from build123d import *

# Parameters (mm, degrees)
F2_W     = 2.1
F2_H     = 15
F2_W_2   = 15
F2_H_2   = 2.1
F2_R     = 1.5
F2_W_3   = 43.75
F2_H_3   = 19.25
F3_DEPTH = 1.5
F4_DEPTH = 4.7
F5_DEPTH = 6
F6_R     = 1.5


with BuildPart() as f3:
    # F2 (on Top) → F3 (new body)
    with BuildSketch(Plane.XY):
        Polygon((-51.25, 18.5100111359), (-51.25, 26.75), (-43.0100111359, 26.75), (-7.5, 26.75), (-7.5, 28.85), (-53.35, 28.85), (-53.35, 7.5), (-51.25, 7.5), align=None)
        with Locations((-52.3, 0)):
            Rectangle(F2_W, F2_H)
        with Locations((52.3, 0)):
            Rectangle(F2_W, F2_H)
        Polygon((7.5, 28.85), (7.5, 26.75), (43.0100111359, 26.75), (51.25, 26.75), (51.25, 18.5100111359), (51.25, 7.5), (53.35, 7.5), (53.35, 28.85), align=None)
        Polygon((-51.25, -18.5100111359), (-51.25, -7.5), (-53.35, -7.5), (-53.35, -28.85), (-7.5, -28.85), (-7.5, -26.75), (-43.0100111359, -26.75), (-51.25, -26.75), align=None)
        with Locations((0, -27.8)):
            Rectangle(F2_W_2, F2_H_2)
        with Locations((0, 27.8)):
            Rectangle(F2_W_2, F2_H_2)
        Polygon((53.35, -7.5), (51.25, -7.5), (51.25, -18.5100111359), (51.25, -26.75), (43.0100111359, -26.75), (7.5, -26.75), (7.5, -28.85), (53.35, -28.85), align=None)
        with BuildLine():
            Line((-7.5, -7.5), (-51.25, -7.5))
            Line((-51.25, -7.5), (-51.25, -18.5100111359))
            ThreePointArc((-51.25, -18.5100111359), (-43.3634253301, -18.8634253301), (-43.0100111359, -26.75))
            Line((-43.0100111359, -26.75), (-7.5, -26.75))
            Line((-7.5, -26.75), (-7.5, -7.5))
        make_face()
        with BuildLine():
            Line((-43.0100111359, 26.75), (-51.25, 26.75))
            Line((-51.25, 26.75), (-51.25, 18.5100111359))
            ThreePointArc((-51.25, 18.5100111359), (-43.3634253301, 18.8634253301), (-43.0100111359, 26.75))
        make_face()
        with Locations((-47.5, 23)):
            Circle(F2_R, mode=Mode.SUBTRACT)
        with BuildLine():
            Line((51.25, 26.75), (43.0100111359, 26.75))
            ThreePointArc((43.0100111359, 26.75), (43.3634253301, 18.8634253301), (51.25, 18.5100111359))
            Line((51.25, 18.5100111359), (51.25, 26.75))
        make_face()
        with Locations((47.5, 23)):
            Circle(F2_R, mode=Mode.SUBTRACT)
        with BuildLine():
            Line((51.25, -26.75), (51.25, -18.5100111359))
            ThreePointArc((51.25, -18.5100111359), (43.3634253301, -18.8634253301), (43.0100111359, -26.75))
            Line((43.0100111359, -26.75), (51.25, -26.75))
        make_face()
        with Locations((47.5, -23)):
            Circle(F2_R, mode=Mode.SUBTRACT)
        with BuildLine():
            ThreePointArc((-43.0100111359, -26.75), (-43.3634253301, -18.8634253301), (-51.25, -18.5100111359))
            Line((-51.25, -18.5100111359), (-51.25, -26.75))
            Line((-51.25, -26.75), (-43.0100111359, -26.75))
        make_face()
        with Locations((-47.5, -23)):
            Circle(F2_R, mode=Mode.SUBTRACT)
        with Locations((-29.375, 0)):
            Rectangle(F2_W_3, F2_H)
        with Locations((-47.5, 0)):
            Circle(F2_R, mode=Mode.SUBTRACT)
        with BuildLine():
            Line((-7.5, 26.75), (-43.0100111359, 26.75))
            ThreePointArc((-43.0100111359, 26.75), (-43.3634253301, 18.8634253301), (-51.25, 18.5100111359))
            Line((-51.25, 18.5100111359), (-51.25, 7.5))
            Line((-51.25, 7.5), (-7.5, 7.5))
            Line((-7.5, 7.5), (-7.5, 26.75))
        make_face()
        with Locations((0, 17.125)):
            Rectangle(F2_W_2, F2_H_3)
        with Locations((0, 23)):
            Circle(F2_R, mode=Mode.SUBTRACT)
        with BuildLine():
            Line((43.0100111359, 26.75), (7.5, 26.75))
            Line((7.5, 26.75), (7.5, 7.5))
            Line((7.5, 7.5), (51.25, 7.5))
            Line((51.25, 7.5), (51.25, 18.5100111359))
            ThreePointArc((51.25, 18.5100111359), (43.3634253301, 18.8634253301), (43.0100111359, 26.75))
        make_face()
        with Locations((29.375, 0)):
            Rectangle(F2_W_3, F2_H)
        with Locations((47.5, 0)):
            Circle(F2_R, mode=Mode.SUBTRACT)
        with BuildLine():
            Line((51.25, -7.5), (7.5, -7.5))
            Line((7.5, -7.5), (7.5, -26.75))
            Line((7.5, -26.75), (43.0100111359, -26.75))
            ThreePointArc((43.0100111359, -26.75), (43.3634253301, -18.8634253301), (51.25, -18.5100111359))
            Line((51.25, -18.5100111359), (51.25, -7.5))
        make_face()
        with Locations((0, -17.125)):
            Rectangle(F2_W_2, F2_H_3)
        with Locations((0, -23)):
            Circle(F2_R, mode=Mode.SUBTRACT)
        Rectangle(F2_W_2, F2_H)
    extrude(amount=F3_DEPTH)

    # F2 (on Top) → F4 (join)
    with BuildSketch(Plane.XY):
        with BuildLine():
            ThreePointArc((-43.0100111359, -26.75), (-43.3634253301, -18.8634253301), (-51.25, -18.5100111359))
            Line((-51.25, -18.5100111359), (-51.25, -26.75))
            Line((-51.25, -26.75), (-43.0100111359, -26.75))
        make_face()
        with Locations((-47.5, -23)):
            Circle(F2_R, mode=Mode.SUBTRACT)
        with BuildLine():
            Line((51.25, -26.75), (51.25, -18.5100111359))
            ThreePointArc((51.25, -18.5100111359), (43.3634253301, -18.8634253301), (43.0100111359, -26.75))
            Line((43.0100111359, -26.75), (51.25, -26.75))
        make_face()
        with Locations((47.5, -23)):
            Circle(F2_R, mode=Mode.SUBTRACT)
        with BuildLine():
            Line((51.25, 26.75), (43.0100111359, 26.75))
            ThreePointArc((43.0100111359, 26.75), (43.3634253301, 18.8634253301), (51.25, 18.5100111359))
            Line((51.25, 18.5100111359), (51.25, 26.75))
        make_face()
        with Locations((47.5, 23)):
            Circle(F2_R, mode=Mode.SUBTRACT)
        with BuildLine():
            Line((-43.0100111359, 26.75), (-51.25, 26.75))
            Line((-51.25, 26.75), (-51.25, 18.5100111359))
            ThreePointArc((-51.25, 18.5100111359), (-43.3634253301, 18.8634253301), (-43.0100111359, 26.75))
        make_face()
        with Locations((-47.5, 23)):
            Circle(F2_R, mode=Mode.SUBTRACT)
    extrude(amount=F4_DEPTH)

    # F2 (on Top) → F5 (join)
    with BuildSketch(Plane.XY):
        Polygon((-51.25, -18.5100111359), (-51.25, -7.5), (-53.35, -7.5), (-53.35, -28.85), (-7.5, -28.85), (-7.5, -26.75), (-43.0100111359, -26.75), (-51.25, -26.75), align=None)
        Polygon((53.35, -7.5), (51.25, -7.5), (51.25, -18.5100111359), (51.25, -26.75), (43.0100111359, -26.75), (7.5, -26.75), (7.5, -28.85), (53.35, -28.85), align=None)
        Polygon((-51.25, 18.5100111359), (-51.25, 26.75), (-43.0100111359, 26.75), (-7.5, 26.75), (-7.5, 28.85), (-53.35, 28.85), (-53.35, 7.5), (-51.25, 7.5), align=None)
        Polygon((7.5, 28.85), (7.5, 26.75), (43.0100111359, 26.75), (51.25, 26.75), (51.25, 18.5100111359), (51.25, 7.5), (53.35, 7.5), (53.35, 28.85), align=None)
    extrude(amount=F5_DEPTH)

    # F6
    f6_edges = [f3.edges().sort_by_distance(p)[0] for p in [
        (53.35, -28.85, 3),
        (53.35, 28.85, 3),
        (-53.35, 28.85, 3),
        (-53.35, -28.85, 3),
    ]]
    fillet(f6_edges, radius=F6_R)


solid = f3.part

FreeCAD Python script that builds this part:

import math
import FreeCAD as App
import Part
import Sketcher
Q = App.Units.Quantity


def edges_at(feature, points):
    """Names of the edges that pass closest to the given points."""
    edges = feature.Shape.Edges
    near = lambda p: min(range(len(edges)), key=lambda i: edges[i].distToShape(Part.Vertex(*p))[0])
    return sorted({f"Edge{near(p) + 1}" for p in points})


def add_polygon(sketch, points):
    """Adds a closed chain of lines whose ends are joined by coincident constraints."""
    first, n = sketch.GeometryCount, len(points)
    for a, b in zip(points, points[1:] + points[:1]):
        sketch.addGeometry(Part.LineSegment(App.Vector(*a, 0), App.Vector(*b, 0)), False)
    for i in range(n):
        sketch.addConstraint(Sketcher.Constraint("Coincident", first + i, 2, first + (i + 1) % n, 1))

doc = App.newDocument("Part")
params = doc.addObject("Spreadsheet::Sheet", "Params")
for row, (alias, value) in enumerate([
    ("sketch1_diameter", "3 mm"),
    ("sketch1_width", "106.7 mm"),
    ("sketch1_height", "57.7 mm"),
    ("pad1_length", "1.5 mm"),
    ("sketch2_diameter", "3 mm"),
    ("sketch2_radius", "5.85 mm"),
    ("pad2_length", "4.7 mm"),
    ("sketch3_width", "2.1 mm"),
    ("sketch3_width2", "45.85 mm"),
    ("sketch3_height", "21.35 mm"),
    ("pad3_length", "6 mm"),
    ("fillet_radius", "1.5 mm"),
], start=1):
    params.set(f"A{row}", alias)
    params.set(f"B{row}", "=" + value)
    params.setAlias(f"B{row}", alias)

body = doc.addObject("PartDesign::Body", "Body")

# Sketch on XY plane
sketch1 = body.newObject("Sketcher::SketchObject", "Sketch")
sketch1.AttachmentSupport = (doc.getObject("XY_Plane"), [""])
sketch1.MapMode = "FlatFace"
add_polygon(sketch1, [(53.4, 28.9), (-53.4, 28.9), (-53.4, -28.9), (53.4, -28.9)])  # lines 0-3
sketch1.addGeometry(Part.Circle(App.Vector(-47.5, -23, 0), App.Vector(0, 0, 1), 1.5), False)  # 4
sketch1.addGeometry(Part.Circle(App.Vector(0, -23, 0), App.Vector(0, 0, 1), 1.5), False)  # 5
sketch1.addGeometry(Part.Circle(App.Vector(-47.5, 0, 0), App.Vector(0, 0, 1), 1.5), False)  # 6
sketch1.addGeometry(Part.Circle(App.Vector(47.5, -23, 0), App.Vector(0, 0, 1), 1.5), False)  # 7
sketch1.addGeometry(Part.Circle(App.Vector(47.5, 0, 0), App.Vector(0, 0, 1), 1.5), False)  # 8
sketch1.addGeometry(Part.Circle(App.Vector(-47.5, 23, 0), App.Vector(0, 0, 1), 1.5), False)  # 9
sketch1.addGeometry(Part.Circle(App.Vector(0, 23, 0), App.Vector(0, 0, 1), 1.5), False)  # 10
sketch1.addGeometry(Part.Circle(App.Vector(47.5, 23, 0), App.Vector(0, 0, 1), 1.5), False)  # 11
sketch1.addConstraint(Sketcher.Constraint("Horizontal", 0))
sketch1.addConstraint(Sketcher.Constraint("Vertical", 1))
sketch1.addConstraint(Sketcher.Constraint("Horizontal", 2))
sketch1.addConstraint(Sketcher.Constraint("Vertical", 3))
sketch1.addConstraint(Sketcher.Constraint("Equal", 4, 5))
sketch1.addConstraint(Sketcher.Constraint("Equal", 5, 6))
sketch1.addConstraint(Sketcher.Constraint("Equal", 6, 7))
sketch1.addConstraint(Sketcher.Constraint("Equal", 7, 8))
sketch1.addConstraint(Sketcher.Constraint("Equal", 8, 9))
sketch1.addConstraint(Sketcher.Constraint("Equal", 9, 10))
sketch1.addConstraint(Sketcher.Constraint("Equal", 10, 11))
sketch1.addConstraint(Sketcher.Constraint("Symmetric", 6, 3, 8, 3, -1, 1))
sketch1.addConstraint(Sketcher.Constraint("Symmetric", 7, 3, 9, 3, -1, 1))
sketch1.addConstraint(Sketcher.Constraint("Symmetric", 5, 3, 10, 3, -1, 1))
sketch1.addConstraint(Sketcher.Constraint("Symmetric", 4, 3, 11, 3, -1, 1))
sketch1.addConstraint(Sketcher.Constraint("Symmetric", 0, 2, 2, 2, -1, 1))
sketch1.addConstraint(Sketcher.Constraint("Symmetric", 4, 3, 7, 3, -2))
sketch1.addConstraint(Sketcher.Constraint("PointOnObject", 5, 3, -2))
sketch1.addConstraint(Sketcher.Constraint("PointOnObject", 6, 3, -1))
sketch1.addConstraint(Sketcher.Constraint("Horizontal", 4, 3, 5, 3))
sketch1.addConstraint(Sketcher.Constraint("Vertical", 4, 3, 6, 3))
sketch1.addConstraint(Sketcher.Constraint("Diameter", 4, Q("3 mm")))
sketch1.addConstraint(Sketcher.Constraint("DistanceX", 0, 2, 0, 1, Q("106.7 mm")))
sketch1.addConstraint(Sketcher.Constraint("DistanceY", 1, 2, 1, 1, Q("57.7 mm")))
sketch1.addConstraint(Sketcher.Constraint("DistanceY", 4, 3, -1, 1, Q("23 mm")))
sketch1.addConstraint(Sketcher.Constraint("DistanceX", 4, 3, 7, 3, Q("95 mm")))
sketch1.setExpression("Constraints[25]", "Params.sketch1_diameter")
sketch1.setExpression("Constraints[26]", "Params.sketch1_width")
sketch1.setExpression("Constraints[27]", "Params.sketch1_height")
pad1 = body.newObject("PartDesign::Pad", "Pad")
pad1.Profile = sketch1
pad1.setExpression("Length", "Params.pad1_length")

# Sketch on XY plane
sketch2 = body.newObject("Sketcher::SketchObject", "Sketch001")
sketch2.AttachmentSupport = (doc.getObject("XY_Plane"), [""])
sketch2.MapMode = "FlatFace"
sketch2.addGeometry(Part.ArcOfCircle(Part.Circle(App.Vector(-47.5, -23, 0), App.Vector(0, 0, 1), 5.8), math.radians(-40), math.radians(130)), False)
sketch2.addGeometry(Part.LineSegment(App.Vector(-51.2, -18.5, 0), App.Vector(-51.2, -26.8, 0)), False)
sketch2.addGeometry(Part.LineSegment(App.Vector(-51.2, -26.8, 0), App.Vector(-43, -26.8, 0)), False)
sketch2.addGeometry(Part.Circle(App.Vector(-47.5, -23, 0), App.Vector(0, 0, 1), 1.5), False)
sketch2.addGeometry(Part.LineSegment(App.Vector(51.2, -26.8, 0), App.Vector(51.2, -18.5, 0)), False)
sketch2.addGeometry(Part.ArcOfCircle(Part.Circle(App.Vector(47.5, -23, 0), App.Vector(0, 0, 1), 5.8), math.radians(50), math.radians(220)), False)
sketch2.addGeometry(Part.LineSegment(App.Vector(43, -26.8, 0), App.Vector(51.2, -26.8, 0)), False)
sketch2.addGeometry(Part.Circle(App.Vector(47.5, -23, 0), App.Vector(0, 0, 1), 1.5), False)
sketch2.addGeometry(Part.LineSegment(App.Vector(51.2, 26.8, 0), App.Vector(43, 26.8, 0)), False)
sketch2.addGeometry(Part.ArcOfCircle(Part.Circle(App.Vector(47.5, 23, 0), App.Vector(0, 0, 1), 5.8), math.radians(140), math.radians(310)), False)
sketch2.addGeometry(Part.LineSegment(App.Vector(51.2, 18.5, 0), App.Vector(51.2, 26.8, 0)), False)
sketch2.addGeometry(Part.Circle(App.Vector(47.5, 23, 0), App.Vector(0, 0, 1), 1.5), False)
sketch2.addGeometry(Part.LineSegment(App.Vector(-43, 26.8, 0), App.Vector(-51.2, 26.8, 0)), False)
sketch2.addGeometry(Part.LineSegment(App.Vector(-51.2, 26.8, 0), App.Vector(-51.2, 18.5, 0)), False)
sketch2.addGeometry(Part.ArcOfCircle(Part.Circle(App.Vector(-47.5, 23, 0), App.Vector(0, 0, 1), 5.8), math.radians(-130), math.radians(40)), False)
sketch2.addGeometry(Part.Circle(App.Vector(-47.5, 23, 0), App.Vector(0, 0, 1), 1.5), False)
sketch2.addConstraint(Sketcher.Constraint("Coincident", 0, 2, 1, 1))
sketch2.addConstraint(Sketcher.Constraint("Coincident", 1, 2, 2, 1))
sketch2.addConstraint(Sketcher.Constraint("Coincident", 2, 2, 0, 1))
sketch2.addConstraint(Sketcher.Constraint("Coincident", 4, 2, 5, 1))
sketch2.addConstraint(Sketcher.Constraint("Coincident", 5, 2, 6, 1))
sketch2.addConstraint(Sketcher.Constraint("Coincident", 6, 2, 4, 1))
sketch2.addConstraint(Sketcher.Constraint("Coincident", 8, 2, 9, 1))
sketch2.addConstraint(Sketcher.Constraint("Coincident", 9, 2, 10, 1))
sketch2.addConstraint(Sketcher.Constraint("Coincident", 10, 2, 8, 1))
sketch2.addConstraint(Sketcher.Constraint("Coincident", 12, 2, 13, 1))
sketch2.addConstraint(Sketcher.Constraint("Coincident", 13, 2, 14, 1))
sketch2.addConstraint(Sketcher.Constraint("Coincident", 14, 2, 12, 1))
sketch2.addConstraint(Sketcher.Constraint("Vertical", 1))
sketch2.addConstraint(Sketcher.Constraint("Horizontal", 2))
sketch2.addConstraint(Sketcher.Constraint("Vertical", 4))
sketch2.addConstraint(Sketcher.Constraint("Horizontal", 6))
sketch2.addConstraint(Sketcher.Constraint("Horizontal", 8))
sketch2.addConstraint(Sketcher.Constraint("Vertical", 10))
sketch2.addConstraint(Sketcher.Constraint("Horizontal", 12))
sketch2.addConstraint(Sketcher.Constraint("Vertical", 13))
sketch2.addConstraint(Sketcher.Constraint("Coincident", 3, 3, 0, 3))
sketch2.addConstraint(Sketcher.Constraint("Coincident", 7, 3, 5, 3))
sketch2.addConstraint(Sketcher.Constraint("Coincident", 11, 3, 9, 3))
sketch2.addConstraint(Sketcher.Constraint("Coincident", 15, 3, 14, 3))
sketch2.addConstraint(Sketcher.Constraint("Equal", 0, 5))
sketch2.addConstraint(Sketcher.Constraint("Equal", 3, 7))
sketch2.addConstraint(Sketcher.Constraint("Equal", 5, 9))
sketch2.addConstraint(Sketcher.Constraint("Equal", 7, 11))
sketch2.addConstraint(Sketcher.Constraint("Equal", 9, 14))
sketch2.addConstraint(Sketcher.Constraint("Equal", 11, 15))
sketch2.addConstraint(Sketcher.Constraint("Symmetric", 0, 3, 9, 3, -1, 1))
sketch2.addConstraint(Sketcher.Constraint("Symmetric", 5, 3, 14, 3, -1, 1))
sketch2.addConstraint(Sketcher.Constraint("Symmetric", 1, 2, 10, 2, -1, 1))
sketch2.addConstraint(Sketcher.Constraint("Symmetric", 6, 2, 12, 2, -1, 1))
sketch2.addConstraint(Sketcher.Constraint("Symmetric", 0, 3, 5, 3, -2))
sketch2.addConstraint(Sketcher.Constraint("Symmetric", 1, 2, 6, 2, -2))
sketch2.addConstraint(Sketcher.Constraint("Equal", 12, 1))
sketch2.addConstraint(Sketcher.Constraint("Diameter", 3, Q("3 mm")))
sketch2.addConstraint(Sketcher.Constraint("Radius", 0, Q("5.85 mm")))
sketch2.addConstraint(Sketcher.Constraint("DistanceY", 0, 3, -1, 1, Q("23 mm")))
sketch2.addConstraint(Sketcher.Constraint("DistanceX", 0, 3, 5, 3, Q("95 mm")))
sketch2.addConstraint(Sketcher.Constraint("DistanceX", 0, 2, -1, 1, Q("51.25 mm")))
sketch2.setExpression("Constraints[37]", "Params.sketch2_diameter")
sketch2.setExpression("Constraints[38]", "Params.sketch2_radius")
pad2 = body.newObject("PartDesign::Pad", "Pad001")
pad2.Profile = sketch2
pad2.setExpression("Length", "Params.pad2_length")

# Sketch on XY plane
sketch3 = body.newObject("Sketcher::SketchObject", "Sketch002")
sketch3.AttachmentSupport = (doc.getObject("XY_Plane"), [""])
sketch3.MapMode = "FlatFace"
add_polygon(sketch3, [(-51.2, -7.5), (-53.4, -7.5), (-53.4, -28.9), (-7.5, -28.9), (-7.5, -26.8), (-51.2, -26.8)])  # lines 0-5
add_polygon(sketch3, [(53.4, -7.5), (51.2, -7.5), (51.2, -26.8), (7.5, -26.8), (7.5, -28.9), (53.4, -28.9)])  # lines 6-11
add_polygon(sketch3, [(-51.2, 26.8), (-7.5, 26.8), (-7.5, 28.9), (-53.4, 28.9), (-53.4, 7.5), (-51.2, 7.5)])  # lines 12-17
add_polygon(sketch3, [(7.5, 28.9), (7.5, 26.8), (51.2, 26.8), (51.2, 7.5), (53.4, 7.5), (53.4, 28.9)])  # lines 18-23
sketch3.addConstraint(Sketcher.Constraint("Horizontal", 0))
sketch3.addConstraint(Sketcher.Constraint("Vertical", 1))
sketch3.addConstraint(Sketcher.Constraint("Horizontal", 2))
sketch3.addConstraint(Sketcher.Constraint("Vertical", 3))
sketch3.addConstraint(Sketcher.Constraint("Horizontal", 4))
sketch3.addConstraint(Sketcher.Constraint("Vertical", 5))
sketch3.addConstraint(Sketcher.Constraint("Horizontal", 6))
sketch3.addConstraint(Sketcher.Constraint("Vertical", 7))
sketch3.addConstraint(Sketcher.Constraint("Horizontal", 8))
sketch3.addConstraint(Sketcher.Constraint("Vertical", 9))
sketch3.addConstraint(Sketcher.Constraint("Horizontal", 10))
sketch3.addConstraint(Sketcher.Constraint("Vertical", 11))
sketch3.addConstraint(Sketcher.Constraint("Horizontal", 12))
sketch3.addConstraint(Sketcher.Constraint("Vertical", 13))
sketch3.addConstraint(Sketcher.Constraint("Horizontal", 14))
sketch3.addConstraint(Sketcher.Constraint("Vertical", 15))
sketch3.addConstraint(Sketcher.Constraint("Horizontal", 16))
sketch3.addConstraint(Sketcher.Constraint("Vertical", 17))
sketch3.addConstraint(Sketcher.Constraint("Vertical", 18))
sketch3.addConstraint(Sketcher.Constraint("Horizontal", 19))
sketch3.addConstraint(Sketcher.Constraint("Vertical", 20))
sketch3.addConstraint(Sketcher.Constraint("Horizontal", 21))
sketch3.addConstraint(Sketcher.Constraint("Vertical", 22))
sketch3.addConstraint(Sketcher.Constraint("Horizontal", 23))
sketch3.addConstraint(Sketcher.Constraint("Symmetric", 8, 2, 12, 2, -1, 1))
sketch3.addConstraint(Sketcher.Constraint("Symmetric", 10, 2, 14, 2, -1, 1))
sketch3.addConstraint(Sketcher.Constraint("Symmetric", 6, 2, 16, 2, -1, 1))
sketch3.addConstraint(Sketcher.Constraint("Symmetric", 3, 2, 18, 2, -1, 1))
sketch3.addConstraint(Sketcher.Constraint("Symmetric", 5, 2, 20, 2, -1, 1))
sketch3.addConstraint(Sketcher.Constraint("Symmetric", 1, 2, 22, 2, -1, 1))
sketch3.addConstraint(Sketcher.Constraint("Symmetric", 5, 2, 6, 2, -2))
sketch3.addConstraint(Sketcher.Constraint("Symmetric", 3, 2, 8, 2, -2))
sketch3.addConstraint(Sketcher.Constraint("Symmetric", 1, 2, 10, 2, -2))
sketch3.addConstraint(Sketcher.Constraint("Equal", 21, 3))
sketch3.addConstraint(Sketcher.Constraint("DistanceX", 0, 2, 0, 1, Q("2.1 mm")))
sketch3.addConstraint(Sketcher.Constraint("DistanceX", 3, 2, 8, 2, Q("15 mm")))
sketch3.addConstraint(Sketcher.Constraint("DistanceY", 0, 2, 15, 2, Q("15 mm")))
sketch3.addConstraint(Sketcher.Constraint("DistanceX", 2, 1, 2, 2, Q("45.85 mm")))
sketch3.addConstraint(Sketcher.Constraint("DistanceY", 1, 2, 1, 1, Q("21.35 mm")))
sketch3.setExpression("Constraints[58]", "Params.sketch3_width")
sketch3.setExpression("Constraints[61]", "Params.sketch3_width2")
sketch3.setExpression("Constraints[62]", "Params.sketch3_height")
pad3 = body.newObject("PartDesign::Pad", "Pad002")
pad3.Profile = sketch3
pad3.setExpression("Length", "Params.pad3_length")
doc.recompute()

fillet = body.newObject("PartDesign::Fillet", "Fillet")
fillet.Base = (pad3, edges_at(pad3, [
    (53.35, -28.85, 3),
    (53.35, 28.85, 3),
    (-53.35, 28.85, 3),
    (-53.35, -28.85, 3),
]))
fillet.setExpression("Radius", "Params.fillet_radius")

doc.recompute()
